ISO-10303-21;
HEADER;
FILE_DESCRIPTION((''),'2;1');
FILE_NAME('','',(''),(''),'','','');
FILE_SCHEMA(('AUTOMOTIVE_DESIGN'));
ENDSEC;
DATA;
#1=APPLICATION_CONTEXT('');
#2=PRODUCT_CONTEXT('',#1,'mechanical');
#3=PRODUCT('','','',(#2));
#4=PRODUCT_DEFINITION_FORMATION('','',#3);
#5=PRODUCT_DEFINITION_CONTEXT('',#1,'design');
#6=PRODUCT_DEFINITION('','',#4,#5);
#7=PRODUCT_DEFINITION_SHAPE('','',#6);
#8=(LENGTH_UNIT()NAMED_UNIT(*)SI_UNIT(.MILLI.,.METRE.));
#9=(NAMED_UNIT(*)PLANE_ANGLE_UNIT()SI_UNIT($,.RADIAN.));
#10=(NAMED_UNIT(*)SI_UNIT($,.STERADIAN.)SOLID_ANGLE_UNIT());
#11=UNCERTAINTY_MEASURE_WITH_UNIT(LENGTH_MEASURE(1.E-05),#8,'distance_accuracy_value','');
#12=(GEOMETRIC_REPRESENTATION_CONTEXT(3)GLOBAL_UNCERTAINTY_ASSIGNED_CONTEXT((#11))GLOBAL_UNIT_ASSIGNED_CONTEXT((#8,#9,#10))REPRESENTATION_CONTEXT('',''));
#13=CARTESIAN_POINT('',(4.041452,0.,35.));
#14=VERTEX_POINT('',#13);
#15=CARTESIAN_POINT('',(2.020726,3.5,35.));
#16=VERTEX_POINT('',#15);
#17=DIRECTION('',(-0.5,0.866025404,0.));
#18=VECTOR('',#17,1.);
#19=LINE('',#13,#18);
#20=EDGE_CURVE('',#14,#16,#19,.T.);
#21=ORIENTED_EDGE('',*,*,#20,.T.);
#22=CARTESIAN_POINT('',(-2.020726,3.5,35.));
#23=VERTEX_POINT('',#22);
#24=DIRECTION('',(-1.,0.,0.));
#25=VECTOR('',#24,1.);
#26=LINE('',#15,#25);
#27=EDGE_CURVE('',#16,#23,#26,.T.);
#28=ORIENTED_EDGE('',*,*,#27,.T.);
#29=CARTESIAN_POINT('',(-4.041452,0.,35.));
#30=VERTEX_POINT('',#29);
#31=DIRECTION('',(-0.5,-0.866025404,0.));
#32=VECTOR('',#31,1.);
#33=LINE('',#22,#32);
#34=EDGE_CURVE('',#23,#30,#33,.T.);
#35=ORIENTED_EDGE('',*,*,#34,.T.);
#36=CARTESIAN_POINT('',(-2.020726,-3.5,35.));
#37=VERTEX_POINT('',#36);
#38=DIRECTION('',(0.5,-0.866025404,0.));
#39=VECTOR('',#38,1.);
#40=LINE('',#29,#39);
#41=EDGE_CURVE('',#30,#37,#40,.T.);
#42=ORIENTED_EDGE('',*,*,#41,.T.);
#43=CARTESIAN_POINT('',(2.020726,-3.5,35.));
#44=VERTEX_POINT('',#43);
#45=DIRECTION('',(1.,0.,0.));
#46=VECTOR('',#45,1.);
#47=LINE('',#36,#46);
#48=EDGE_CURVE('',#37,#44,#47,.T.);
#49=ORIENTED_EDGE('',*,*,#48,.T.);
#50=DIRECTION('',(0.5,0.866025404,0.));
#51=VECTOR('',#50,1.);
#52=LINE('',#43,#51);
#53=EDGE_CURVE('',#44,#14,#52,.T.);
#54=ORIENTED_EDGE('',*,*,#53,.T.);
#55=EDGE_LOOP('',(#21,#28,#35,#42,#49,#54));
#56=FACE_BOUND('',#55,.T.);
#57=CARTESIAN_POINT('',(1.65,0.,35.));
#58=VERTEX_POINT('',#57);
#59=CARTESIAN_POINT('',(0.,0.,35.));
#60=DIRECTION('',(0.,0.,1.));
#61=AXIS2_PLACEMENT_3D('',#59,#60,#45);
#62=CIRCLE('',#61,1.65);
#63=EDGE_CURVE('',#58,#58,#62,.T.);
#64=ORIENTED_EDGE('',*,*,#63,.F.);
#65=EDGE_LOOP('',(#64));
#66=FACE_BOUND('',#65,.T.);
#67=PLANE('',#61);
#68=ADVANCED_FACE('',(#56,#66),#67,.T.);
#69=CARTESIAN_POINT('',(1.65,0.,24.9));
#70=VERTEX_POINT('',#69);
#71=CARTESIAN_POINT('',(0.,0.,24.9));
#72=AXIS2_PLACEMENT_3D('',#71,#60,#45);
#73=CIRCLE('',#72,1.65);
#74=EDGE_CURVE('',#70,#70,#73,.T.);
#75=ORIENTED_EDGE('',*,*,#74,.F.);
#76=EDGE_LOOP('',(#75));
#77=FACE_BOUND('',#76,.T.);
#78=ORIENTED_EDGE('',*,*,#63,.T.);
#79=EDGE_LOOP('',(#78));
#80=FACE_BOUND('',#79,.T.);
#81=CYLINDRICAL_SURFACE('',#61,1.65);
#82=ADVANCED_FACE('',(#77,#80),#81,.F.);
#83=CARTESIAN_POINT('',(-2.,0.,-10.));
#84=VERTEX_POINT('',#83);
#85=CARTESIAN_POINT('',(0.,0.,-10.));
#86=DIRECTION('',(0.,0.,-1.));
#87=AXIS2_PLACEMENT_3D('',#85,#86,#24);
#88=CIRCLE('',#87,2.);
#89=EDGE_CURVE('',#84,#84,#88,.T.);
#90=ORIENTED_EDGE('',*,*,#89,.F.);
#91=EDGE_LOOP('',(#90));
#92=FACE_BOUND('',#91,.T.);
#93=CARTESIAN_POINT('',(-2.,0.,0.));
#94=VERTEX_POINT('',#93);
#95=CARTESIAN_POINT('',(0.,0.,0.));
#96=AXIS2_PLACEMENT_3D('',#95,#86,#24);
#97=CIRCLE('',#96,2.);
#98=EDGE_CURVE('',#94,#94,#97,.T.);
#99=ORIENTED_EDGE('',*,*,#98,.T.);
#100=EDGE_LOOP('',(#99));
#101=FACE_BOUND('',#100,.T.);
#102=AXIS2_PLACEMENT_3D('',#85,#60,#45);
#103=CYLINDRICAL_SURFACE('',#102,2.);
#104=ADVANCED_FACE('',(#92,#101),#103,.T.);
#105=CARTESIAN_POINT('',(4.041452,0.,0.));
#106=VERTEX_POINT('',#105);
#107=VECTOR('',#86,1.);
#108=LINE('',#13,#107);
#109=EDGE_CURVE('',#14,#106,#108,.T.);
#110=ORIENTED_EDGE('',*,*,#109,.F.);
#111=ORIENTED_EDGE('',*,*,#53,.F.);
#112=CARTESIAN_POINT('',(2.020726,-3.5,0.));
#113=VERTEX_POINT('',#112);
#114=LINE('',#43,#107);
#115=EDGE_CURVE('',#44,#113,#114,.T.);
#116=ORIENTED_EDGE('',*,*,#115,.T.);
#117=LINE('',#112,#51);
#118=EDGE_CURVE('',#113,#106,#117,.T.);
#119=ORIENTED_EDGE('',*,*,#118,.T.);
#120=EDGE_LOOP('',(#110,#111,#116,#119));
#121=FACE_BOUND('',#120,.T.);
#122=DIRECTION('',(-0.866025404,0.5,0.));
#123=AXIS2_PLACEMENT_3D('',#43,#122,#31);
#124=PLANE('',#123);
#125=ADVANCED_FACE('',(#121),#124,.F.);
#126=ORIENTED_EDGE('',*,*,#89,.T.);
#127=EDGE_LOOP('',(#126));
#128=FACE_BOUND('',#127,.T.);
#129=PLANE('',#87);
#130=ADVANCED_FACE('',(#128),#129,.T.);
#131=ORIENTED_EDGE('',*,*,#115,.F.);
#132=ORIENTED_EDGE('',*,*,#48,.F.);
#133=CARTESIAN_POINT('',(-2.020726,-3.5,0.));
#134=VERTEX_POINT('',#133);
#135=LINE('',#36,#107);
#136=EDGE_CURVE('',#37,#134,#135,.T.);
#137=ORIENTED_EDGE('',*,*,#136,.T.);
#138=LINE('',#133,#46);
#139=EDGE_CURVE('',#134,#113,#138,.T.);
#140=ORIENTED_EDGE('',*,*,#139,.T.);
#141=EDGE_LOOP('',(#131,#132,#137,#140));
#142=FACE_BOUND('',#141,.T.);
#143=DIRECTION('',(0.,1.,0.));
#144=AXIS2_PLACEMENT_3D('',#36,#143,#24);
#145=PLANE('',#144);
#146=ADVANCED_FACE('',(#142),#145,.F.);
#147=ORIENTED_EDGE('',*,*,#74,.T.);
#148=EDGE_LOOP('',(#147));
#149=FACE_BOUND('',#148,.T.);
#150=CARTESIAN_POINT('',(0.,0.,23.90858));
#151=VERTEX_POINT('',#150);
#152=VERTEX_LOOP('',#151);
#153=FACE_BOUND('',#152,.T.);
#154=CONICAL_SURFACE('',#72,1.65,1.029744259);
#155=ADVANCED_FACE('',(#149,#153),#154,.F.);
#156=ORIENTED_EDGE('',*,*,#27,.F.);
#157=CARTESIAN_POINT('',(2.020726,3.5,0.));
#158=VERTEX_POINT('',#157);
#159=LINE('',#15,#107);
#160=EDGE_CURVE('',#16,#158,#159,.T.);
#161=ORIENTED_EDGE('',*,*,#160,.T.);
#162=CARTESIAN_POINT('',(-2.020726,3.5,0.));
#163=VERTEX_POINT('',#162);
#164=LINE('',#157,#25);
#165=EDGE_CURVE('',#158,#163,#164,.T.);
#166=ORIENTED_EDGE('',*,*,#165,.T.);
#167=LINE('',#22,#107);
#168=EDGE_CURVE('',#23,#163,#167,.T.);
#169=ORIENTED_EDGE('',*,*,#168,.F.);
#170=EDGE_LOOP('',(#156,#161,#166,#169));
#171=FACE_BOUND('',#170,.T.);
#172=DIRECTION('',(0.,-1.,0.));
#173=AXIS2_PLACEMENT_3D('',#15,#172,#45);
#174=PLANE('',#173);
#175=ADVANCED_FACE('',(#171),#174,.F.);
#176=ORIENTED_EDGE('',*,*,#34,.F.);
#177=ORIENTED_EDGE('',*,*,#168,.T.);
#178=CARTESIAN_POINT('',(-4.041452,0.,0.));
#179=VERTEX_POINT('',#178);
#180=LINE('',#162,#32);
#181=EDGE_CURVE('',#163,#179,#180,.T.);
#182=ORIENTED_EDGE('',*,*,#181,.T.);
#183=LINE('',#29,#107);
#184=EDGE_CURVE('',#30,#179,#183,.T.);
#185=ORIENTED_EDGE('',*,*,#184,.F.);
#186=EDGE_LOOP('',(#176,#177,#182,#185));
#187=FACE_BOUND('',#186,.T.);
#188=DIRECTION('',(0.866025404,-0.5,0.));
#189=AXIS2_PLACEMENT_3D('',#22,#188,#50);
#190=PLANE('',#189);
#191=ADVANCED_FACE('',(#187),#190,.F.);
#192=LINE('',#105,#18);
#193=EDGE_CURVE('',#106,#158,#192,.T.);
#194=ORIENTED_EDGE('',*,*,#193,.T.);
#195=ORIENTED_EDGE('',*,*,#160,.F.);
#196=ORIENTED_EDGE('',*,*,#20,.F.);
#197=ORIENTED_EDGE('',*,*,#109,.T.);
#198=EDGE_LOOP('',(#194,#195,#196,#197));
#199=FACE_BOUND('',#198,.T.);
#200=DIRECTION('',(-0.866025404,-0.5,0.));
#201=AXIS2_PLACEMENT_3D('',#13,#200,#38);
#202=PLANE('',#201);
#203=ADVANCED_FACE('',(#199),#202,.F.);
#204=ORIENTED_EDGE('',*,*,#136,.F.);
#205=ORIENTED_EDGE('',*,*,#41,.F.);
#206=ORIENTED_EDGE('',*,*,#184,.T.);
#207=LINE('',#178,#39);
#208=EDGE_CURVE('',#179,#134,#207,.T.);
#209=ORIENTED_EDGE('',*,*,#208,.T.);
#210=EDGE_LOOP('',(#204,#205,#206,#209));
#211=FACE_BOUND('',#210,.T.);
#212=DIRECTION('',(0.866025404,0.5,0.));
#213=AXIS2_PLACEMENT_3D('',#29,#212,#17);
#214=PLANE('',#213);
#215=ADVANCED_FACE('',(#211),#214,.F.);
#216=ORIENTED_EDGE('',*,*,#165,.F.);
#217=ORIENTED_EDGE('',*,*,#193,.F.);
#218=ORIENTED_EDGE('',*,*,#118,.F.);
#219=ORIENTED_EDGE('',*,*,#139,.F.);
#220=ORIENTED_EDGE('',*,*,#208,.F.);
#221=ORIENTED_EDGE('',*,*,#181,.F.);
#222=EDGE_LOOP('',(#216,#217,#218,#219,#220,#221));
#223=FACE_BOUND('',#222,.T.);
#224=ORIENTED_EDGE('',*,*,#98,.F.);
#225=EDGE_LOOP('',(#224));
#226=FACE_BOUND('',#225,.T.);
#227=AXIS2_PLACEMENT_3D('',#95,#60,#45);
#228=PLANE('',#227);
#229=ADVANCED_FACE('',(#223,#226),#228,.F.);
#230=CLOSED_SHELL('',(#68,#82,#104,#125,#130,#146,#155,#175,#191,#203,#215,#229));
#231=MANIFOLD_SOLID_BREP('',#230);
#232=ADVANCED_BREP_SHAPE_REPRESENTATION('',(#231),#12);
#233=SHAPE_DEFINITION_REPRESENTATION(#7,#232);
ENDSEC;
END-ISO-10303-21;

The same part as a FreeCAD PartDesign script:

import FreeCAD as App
import Part
import Sketcher
from FreeCAD import Vector
Q = App.Units.Quantity

doc = App.newDocument("Part")
body = doc.addObject("PartDesign::Body", "Body")

sketch1 = body.newObject("Sketcher::SketchObject", "Sketch")
sketch1.AttachmentSupport = (doc.getObject("XY_Plane"), [""])
sketch1.MapMode = "FlatFace"
sketch1.addGeometry([
    Part.LineSegment(Vector(-2.020726, 3.5, 0), Vector(-4.041452, 0, 0)),
    Part.LineSegment(Vector(-4.041452, 0, 0), Vector(-2.020726, -3.5, 0)),
    Part.LineSegment(Vector(-2.020726, -3.5, 0), Vector(2.020726, -3.5, 0)),
    Part.LineSegment(Vector(2.020726, -3.5, 0), Vector(4.041452, 0, 0)),
    Part.LineSegment(Vector(4.041452, 0, 0), Vector(2.020726, 3.5, 0)),
    Part.LineSegment(Vector(2.020726, 3.5, 0), Vector(-2.020726, 3.5, 0)),
], False)
sketch1.addConstraint([
    Sketcher.Constraint("Coincident", 0, 2, 1, 1),
    Sketcher.Constraint("Coincident", 1, 2, 2, 1),
    Sketcher.Constraint("Coincident", 2, 2, 3, 1),
    Sketcher.Constraint("Coincident", 3, 2, 4, 1),
    Sketcher.Constraint("Coincident", 4, 2, 5, 1),
    Sketcher.Constraint("Coincident", 5, 2, 0, 1),
    Sketcher.Constraint("Horizontal", 2),
    Sketcher.Constraint("Horizontal", 5),
    Sketcher.Constraint("Symmetric", 0, 2, 3, 2, -1, 1),
    Sketcher.Constraint("Symmetric", 1, 2, 4, 2, -1, 1),
    Sketcher.Constraint("PointOnObject", 0, 2, -1),
    Sketcher.Constraint("Parallel", 0, 3),
    Sketcher.Constraint("Vertical", 2, 2, 4, 2),
    Sketcher.Constraint("Angle", 0, Q("-120 deg")),
    Sketcher.Constraint("DistanceY", 2, 2, 4, 2, Q("7 mm")),
    Sketcher.Constraint("DistanceX", 2, 1, 2, 2, Q("4.041452 mm")),
])
pad1 = body.newObject("PartDesign::Pad", "Pad")
pad1.Profile = sketch1
pad1.Length = 35

sketch2 = body.newObject("Sketcher::SketchObject", "Sketch001")
sketch2.AttachmentSupport = (doc.getObject("XY_Plane"), [""])
sketch2.MapMode = "FlatFace"
sketch2.addGeometry(Part.Circle(Vector(0, 0, 0), Vector(0, 0, 1), 2), False)
sketch2.addConstraint([
    Sketcher.Constraint("Coincident", 0, 3, -1, 1),
    Sketcher.Constraint("Diameter", 0, Q("4 mm")),
])
pad2 = body.newObject("PartDesign::Pad", "Pad001")
pad2.Profile = sketch2
pad2.Length = 10
pad2.Reversed = True

sketch3 = body.newObject("Sketcher::SketchObject", "Sketch002")
sketch3.AttachmentSupport = (doc.getObject("XY_Plane"), [""])
sketch3.MapMode = "FlatFace"
sketch3.AttachmentOffset = App.Placement(Vector(0, 0, 35), App.Rotation())
sketch3.addGeometry(Part.Circle(Vector(0, 0, 0), Vector(0, 0, 1), 1.65), False)
sketch3.addConstraint([
    Sketcher.Constraint("Coincident", 0, 3, -1, 1),
    Sketcher.Constraint("Diameter", 0, Q("3.3 mm")),
])
doc.recompute()
hole = body.newObject("PartDesign::Hole", "Hole")
hole.Profile = sketch3
hole.ThreadType = "None"
hole.Diameter = 3.3
hole.DepthType = "Dimension"
hole.Depth = 10.1
hole.DrillPoint = "Angled"
hole.DrillPointAngle = 118

doc.recompute()
